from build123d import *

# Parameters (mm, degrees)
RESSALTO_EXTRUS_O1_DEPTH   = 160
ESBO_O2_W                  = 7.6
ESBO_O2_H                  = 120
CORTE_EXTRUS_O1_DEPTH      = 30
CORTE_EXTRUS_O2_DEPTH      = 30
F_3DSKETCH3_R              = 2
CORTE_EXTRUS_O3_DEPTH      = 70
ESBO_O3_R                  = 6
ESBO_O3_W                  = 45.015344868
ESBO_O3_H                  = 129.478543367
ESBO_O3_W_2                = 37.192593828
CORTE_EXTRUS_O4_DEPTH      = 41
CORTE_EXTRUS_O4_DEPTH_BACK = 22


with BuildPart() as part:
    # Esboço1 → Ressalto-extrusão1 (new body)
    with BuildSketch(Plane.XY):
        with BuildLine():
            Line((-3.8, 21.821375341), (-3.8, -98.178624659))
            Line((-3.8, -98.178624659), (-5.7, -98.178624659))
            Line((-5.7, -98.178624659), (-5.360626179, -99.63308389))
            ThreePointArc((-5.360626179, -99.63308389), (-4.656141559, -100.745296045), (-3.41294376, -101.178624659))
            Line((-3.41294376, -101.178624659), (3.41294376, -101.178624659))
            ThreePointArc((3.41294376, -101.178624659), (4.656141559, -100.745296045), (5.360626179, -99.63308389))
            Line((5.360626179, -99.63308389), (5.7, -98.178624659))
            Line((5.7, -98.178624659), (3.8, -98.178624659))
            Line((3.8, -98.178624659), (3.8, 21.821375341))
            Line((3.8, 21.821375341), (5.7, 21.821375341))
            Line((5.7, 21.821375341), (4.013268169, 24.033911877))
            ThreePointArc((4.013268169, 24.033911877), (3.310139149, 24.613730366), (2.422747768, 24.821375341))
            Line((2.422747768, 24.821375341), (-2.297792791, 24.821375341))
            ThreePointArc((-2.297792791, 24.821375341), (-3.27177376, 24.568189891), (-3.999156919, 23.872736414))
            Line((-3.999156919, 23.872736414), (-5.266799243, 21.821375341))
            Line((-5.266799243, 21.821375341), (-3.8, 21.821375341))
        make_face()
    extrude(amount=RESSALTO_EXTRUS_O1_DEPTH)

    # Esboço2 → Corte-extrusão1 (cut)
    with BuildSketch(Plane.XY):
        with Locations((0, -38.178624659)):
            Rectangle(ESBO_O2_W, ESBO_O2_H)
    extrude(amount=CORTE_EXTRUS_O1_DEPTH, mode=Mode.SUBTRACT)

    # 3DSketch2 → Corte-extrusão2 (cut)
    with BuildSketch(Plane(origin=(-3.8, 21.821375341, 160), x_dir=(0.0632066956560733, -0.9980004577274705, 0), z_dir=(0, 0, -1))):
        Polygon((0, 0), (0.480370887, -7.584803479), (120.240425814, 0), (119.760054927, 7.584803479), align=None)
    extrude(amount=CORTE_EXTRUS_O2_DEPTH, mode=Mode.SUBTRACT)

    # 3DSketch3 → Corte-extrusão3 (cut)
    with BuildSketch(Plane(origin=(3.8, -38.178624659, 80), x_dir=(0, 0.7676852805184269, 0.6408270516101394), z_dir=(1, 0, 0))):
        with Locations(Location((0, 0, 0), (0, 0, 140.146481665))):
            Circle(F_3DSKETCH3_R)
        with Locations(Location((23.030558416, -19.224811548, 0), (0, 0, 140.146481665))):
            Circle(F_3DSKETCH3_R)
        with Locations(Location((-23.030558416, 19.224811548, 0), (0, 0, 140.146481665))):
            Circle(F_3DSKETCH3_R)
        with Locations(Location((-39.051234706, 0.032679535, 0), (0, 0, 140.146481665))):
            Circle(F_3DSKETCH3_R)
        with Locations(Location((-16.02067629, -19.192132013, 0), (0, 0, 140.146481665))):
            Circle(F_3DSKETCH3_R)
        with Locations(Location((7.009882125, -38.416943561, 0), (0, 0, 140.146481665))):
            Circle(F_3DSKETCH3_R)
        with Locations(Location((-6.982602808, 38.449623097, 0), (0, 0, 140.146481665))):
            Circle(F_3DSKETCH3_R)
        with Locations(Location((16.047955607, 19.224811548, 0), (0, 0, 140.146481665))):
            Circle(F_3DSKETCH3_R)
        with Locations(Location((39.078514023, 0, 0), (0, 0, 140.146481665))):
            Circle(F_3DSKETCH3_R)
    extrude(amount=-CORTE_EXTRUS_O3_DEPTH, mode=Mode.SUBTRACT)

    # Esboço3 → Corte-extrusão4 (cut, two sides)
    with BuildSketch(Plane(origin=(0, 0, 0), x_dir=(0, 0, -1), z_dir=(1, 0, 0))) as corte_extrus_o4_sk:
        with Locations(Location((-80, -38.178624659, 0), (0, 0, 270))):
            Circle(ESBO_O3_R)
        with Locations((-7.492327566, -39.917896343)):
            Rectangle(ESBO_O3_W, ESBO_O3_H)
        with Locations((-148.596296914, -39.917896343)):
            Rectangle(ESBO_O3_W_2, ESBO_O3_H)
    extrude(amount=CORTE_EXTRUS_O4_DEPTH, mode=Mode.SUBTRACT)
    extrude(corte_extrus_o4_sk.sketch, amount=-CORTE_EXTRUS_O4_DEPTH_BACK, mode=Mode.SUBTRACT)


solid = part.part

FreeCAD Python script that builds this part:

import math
import FreeCAD as App
import Part
import Sketcher
from FreeCAD import Vector

doc = App.newDocument("Part")
body = doc.addObject("PartDesign::Body", "Body")

# Sketch on XY plane
sketch1 = doc.addObject("Sketcher::SketchObject", "Sketch")
body.addObject(sketch1)
sketch1.AttachmentSupport = (doc.XY_Plane, [""])
sketch1.MapMode = "FlatFace"
sketch1.addGeometry([
    Part.LineSegment(Vector(-3.8, 21.8, 0), Vector(-3.8, -98.2, 0)),  # 0
    Part.LineSegment(Vector(-3.8, -98.2, 0), Vector(-5.7, -98.2, 0)),  # 1
    Part.LineSegment(Vector(-5.7, -98.2, 0), Vector(-5.4, -99.6, 0)),  # 2
    Part.ArcOfCircle(Part.Circle(Vector(-3.4, -99.2, 0), Vector(0, 0, 1), 2), math.radians(-167), math.radians(-90)),  # 3
    Part.LineSegment(Vector(-3.4, -101.2, 0), Vector(3.4, -101.2, 0)),  # 4
    Part.ArcOfCircle(Part.Circle(Vector(3.4, -99.2, 0), Vector(0, 0, 1), 2), math.radians(-90), math.radians(-13)),  # 5
    Part.LineSegment(Vector(5.4, -99.6, 0), Vector(5.7, -98.2, 0)),  # 6
    Part.LineSegment(Vector(5.7, -98.2, 0), Vector(3.8, -98.2, 0)),  # 7
    Part.LineSegment(Vector(3.8, -98.2, 0), Vector(3.8, 21.8, 0)),  # 8
    Part.LineSegment(Vector(3.8, 21.8, 0), Vector(5.7, 21.8, 0)),  # 9
    Part.LineSegment(Vector(5.7, 21.8, 0), Vector(4, 24, 0)),  # 10
    Part.ArcOfCircle(Part.Circle(Vector(2.4, 22.8, 0), Vector(0, 0, 1), 2), math.radians(37), math.radians(90)),  # 11
    Part.LineSegment(Vector(2.4, 24.8, 0), Vector(-2.3, 24.8, 0)),  # 12
    Part.ArcOfCircle(Part.Circle(Vector(-2.3, 22.8, 0), Vector(0, 0, 1), 2), math.radians(90), math.radians(148)),  # 13
    Part.LineSegment(Vector(-4, 23.9, 0), Vector(-5.3, 21.8, 0)),  # 14
    Part.LineSegment(Vector(-5.3, 21.8, 0), Vector(-3.8, 21.8, 0)),  # 15
], False)
sketch1.addConstraint([
    Sketcher.Constraint("Coincident", 0, 2, 1, 1),
    Sketcher.Constraint("Coincident", 1, 2, 2, 1),
    Sketcher.Constraint("Tangent", 2, 2, 3, 1),
    Sketcher.Constraint("Tangent", 3, 2, 4, 1),
    Sketcher.Constraint("Tangent", 4, 2, 5, 1),
    Sketcher.Constraint("Tangent", 5, 2, 6, 1),
    Sketcher.Constraint("Coincident", 6, 2, 7, 1),
    Sketcher.Constraint("Coincident", 7, 2, 8, 1),
    Sketcher.Constraint("Coincident", 8, 2, 9, 1),
    Sketcher.Constraint("Coincident", 9, 2, 10, 1),
    Sketcher.Constraint("Tangent", 10, 2, 11, 1),
    Sketcher.Constraint("Tangent", 11, 2, 12, 1),
    Sketcher.Constraint("Tangent", 12, 2, 13, 1),
    Sketcher.Constraint("Tangent", 13, 2, 14, 1),
    Sketcher.Constraint("Coincident", 14, 2, 15, 1),
    Sketcher.Constraint("Coincident", 15, 2, 0, 1),
    Sketcher.Constraint("Vertical", 0),
    Sketcher.Constraint("Horizontal", 1),
    Sketcher.Constraint("Horizontal", 4),
    Sketcher.Constraint("Horizontal", 7),
    Sketcher.Constraint("Vertical", 8),
    Sketcher.Constraint("Horizontal", 9),
    Sketcher.Constraint("Horizontal", 12),
    Sketcher.Constraint("Horizontal", 15),
    Sketcher.Constraint("Equal", 3, 5),
    Sketcher.Constraint("Equal", 5, 11),
    Sketcher.Constraint("Equal", 11, 13),
    Sketcher.Constraint("Symmetric", 2, 2, 5, 2, -2),
    Sketcher.Constraint("Symmetric", 0, 2, 7, 2, -2),
    Sketcher.Constraint("Horizontal", 9, 2, 14, 2),
    Sketcher.Constraint("Vertical", 6, 2, 9, 2),
    Sketcher.Constraint("Radius", 3, 2.0),
    Sketcher.Constraint("DistanceY", 0, 2, 0, 1, 120.0),
    Sketcher.Constraint("DistanceX", 1, 2, 1, 1, 1.9),
    Sketcher.Constraint("DistanceY", 5, 3, 11, 3, 122.0),
    Sketcher.Constraint("DistanceY", 3, 3, 0, 2, 1.0),
    Sketcher.Constraint("DistanceX", 0, 2, -1, 1, 3.8),
    Sketcher.Constraint("DistanceX", 15, 1, 15, 2, 1.466799),
    Sketcher.Constraint("DistanceX", 12, 2, 12, 1, 4.720541),
    Sketcher.Constraint("Distance", 2, 1.493528),
    Sketcher.Constraint("Distance", 14, 2.411431),
    Sketcher.Constraint("DistanceY", -1, 1, 10, 2, 24.033912),
])
pad1 = doc.addObject("PartDesign::Pad", "Pad")
body.addObject(pad1)
pad1.Profile = sketch1
pad1.Length = 160

# Sketch on XY plane
sketch2 = doc.addObject("Sketcher::SketchObject", "Sketch001")
body.addObject(sketch2)
sketch2.AttachmentSupport = (doc.XY_Plane, [""])
sketch2.MapMode = "FlatFace"
sketch2.addGeometry([
    Part.LineSegment(Vector(-4, 22, 0), Vector(-4, -98, 0)),
    Part.LineSegment(Vector(-4, -98, 0), Vector(4, -98, 0)),
    Part.LineSegment(Vector(4, -98, 0), Vector(4, 22, 0)),
    Part.LineSegment(Vector(4, 22, 0), Vector(-4, 22, 0)),
], False)
sketch2.addConstraint([
    Sketcher.Constraint("Coincident", 0, 2, 1, 1),
    Sketcher.Constraint("Coincident", 1, 2, 2, 1),
    Sketcher.Constraint("Coincident", 2, 2, 3, 1),
    Sketcher.Constraint("Coincident", 3, 2, 0, 1),
    Sketcher.Constraint("Vertical", 0),
    Sketcher.Constraint("Horizontal", 1),
    Sketcher.Constraint("Vertical", 2),
    Sketcher.Constraint("Horizontal", 3),
    Sketcher.Constraint("DistanceY", 0, 2, 0, 1, 120.0),
    Sketcher.Constraint("DistanceX", 1, 1, 1, 2, 7.6),
    Sketcher.Constraint("DistanceX", 0, 2, -1, 1, 3.8),
    Sketcher.Constraint("DistanceY", 0, 2, -1, 1, 98.178625),
])
pocket1 = doc.addObject("PartDesign::Pocket", "Pocket")
body.addObject(pocket1)
pocket1.Profile = sketch2
pocket1.Length = 30
pocket1.Reversed = True

# Sketch on XY plane
sketch3 = doc.addObject("Sketcher::SketchObject", "Sketch002")
body.addObject(sketch3)
sketch3.AttachmentSupport = (doc.XY_Plane, [""])
sketch3.MapMode = "FlatFace"
sketch3.AttachmentOffset = App.Placement(Vector(0, 0, 160), App.Rotation())
sketch3.addGeometry([
    Part.LineSegment(Vector(-4, 22, 0), Vector(4, 22, 0)),
    Part.LineSegment(Vector(4, 22, 0), Vector(4, -98, 0)),
    Part.LineSegment(Vector(4, -98, 0), Vector(-4, -98, 0)),
    Part.LineSegment(Vector(-4, -98, 0), Vector(-4, 22, 0)),
], False)
sketch3.addConstraint([
    Sketcher.Constraint("Coincident", 0, 2, 1, 1),
    Sketcher.Constraint("Coincident", 1, 2, 2, 1),
    Sketcher.Constraint("Coincident", 2, 2, 3, 1),
    Sketcher.Constraint("Coincident", 3, 2, 0, 1),
    Sketcher.Constraint("Horizontal", 0),
    Sketcher.Constraint("Vertical", 1),
    Sketcher.Constraint("Horizontal", 2),
    Sketcher.Constraint("Vertical", 3),
    Sketcher.Constraint("DistanceY", 1, 2, 1, 1, 120.0),
    Sketcher.Constraint("DistanceX", 0, 1, 0, 2, 7.6),
    Sketcher.Constraint("DistanceX", -1, 1, 0, 2, 3.8),
    Sketcher.Constraint("DistanceY", -1, 1, 0, 2, 21.821375),
])
pocket2 = doc.addObject("PartDesign::Pocket", "Pocket001")
body.addObject(pocket2)
pocket2.Profile = sketch3
pocket2.Length = 30

# Sketch on YZ plane
sketch4 = doc.addObject("Sketcher::SketchObject", "Sketch003")
body.addObject(sketch4)
sketch4.AttachmentSupport = (doc.YZ_Plane, [""])
sketch4.MapMode = "FlatFace"
sketch4.AttachmentOffset = App.Placement(Vector(0, 0, 3.8), App.Rotation())
sketch4.addGeometry([
    Part.Circle(Vector(-38.2, 80, 0), Vector(0, 0, 1), 2),  # 0
    Part.Circle(Vector(-8.2, 80, 0), Vector(0, 0, 1), 2),  # 1
    Part.Circle(Vector(-68.2, 80, 0), Vector(0, 0, 1), 2),  # 2
    Part.Circle(Vector(-68.2, 55, 0), Vector(0, 0, 1), 2),  # 3
    Part.Circle(Vector(-38.2, 55, 0), Vector(0, 0, 1), 2),  # 4
    Part.Circle(Vector(-8.2, 55, 0), Vector(0, 0, 1), 2),  # 5
    Part.Circle(Vector(-68.2, 105, 0), Vector(0, 0, 1), 2),  # 6
    Part.Circle(Vector(-38.2, 105, 0), Vector(0, 0, 1), 2),  # 7
    Part.Circle(Vector(-8.2, 105, 0), Vector(0, 0, 1), 2),  # 8
], False)
sketch4.addConstraint([
    Sketcher.Constraint("Equal", 0, 1),
    Sketcher.Constraint("Equal", 1, 2),
    Sketcher.Constraint("Equal", 2, 3),
    Sketcher.Constraint("Equal", 3, 4),
    Sketcher.Constraint("Equal", 4, 5),
    Sketcher.Constraint("Equal", 5, 6),
    Sketcher.Constraint("Equal", 6, 7),
    Sketcher.Constraint("Equal", 7, 8),
    Sketcher.Constraint("Horizontal", 0, 3, 1, 3),
    Sketcher.Constraint("Horizontal", 1, 3, 2, 3),
    Sketcher.Constraint("Horizontal", 3, 3, 4, 3),
    Sketcher.Constraint("Horizontal", 4, 3, 5, 3),
    Sketcher.Constraint("Horizontal", 6, 3, 7, 3),
    Sketcher.Constraint("Horizontal", 7, 3, 8, 3),
    Sketcher.Constraint("Vertical", 2, 3, 3, 3),
    Sketcher.Constraint("Vertical", 0, 3, 4, 3),
    Sketcher.Constraint("Vertical", 1, 3, 5, 3),
    Sketcher.Constraint("Vertical", 3, 3, 6, 3),
    Sketcher.Constraint("Vertical", 4, 3, 7, 3),
    Sketcher.Constraint("Vertical", 5, 3, 8, 3),
    Sketcher.Constraint("Diameter", 0, 4.0),
    Sketcher.Constraint("DistanceY", -1, 1, 0, 3, 80.0),
    Sketcher.Constraint("DistanceY", -1, 1, 3, 3, 55.0),
    Sketcher.Constraint("DistanceX", 0, 3, 1, 3, 30.0),
    Sketcher.Constraint("DistanceX", 2, 3, 0, 3, 30.0),
    Sketcher.Constraint("DistanceY", -1, 1, 6, 3, 105.042569),
    Sketcher.Constraint("DistanceX", 0, 3, -1, 1, 38.178625),
])
pocket3 = doc.addObject("PartDesign::Pocket", "Pocket002")
body.addObject(pocket3)
pocket3.Profile = sketch4
pocket3.Length = 70

# Sketch on YZ plane
sketch5 = doc.addObject("Sketcher::SketchObject", "Sketch004")
body.addObject(sketch5)
sketch5.AttachmentSupport = (doc.YZ_Plane, [""])
sketch5.MapMode = "FlatFace"
sketch5.addGeometry([
    Part.Circle(Vector(-38, 80, 0), Vector(0, 0, 1), 6),  # 0
    Part.LineSegment(Vector(25, 30, 0), Vector(-105, 30, 0)),  # 1
    Part.LineSegment(Vector(-105, 30, 0), Vector(-105, -15, 0)),  # 2
    Part.LineSegment(Vector(-105, -15, 0), Vector(25, -15, 0)),  # 3
    Part.LineSegment(Vector(25, -15, 0), Vector(25, 30, 0)),  # 4
    Part.LineSegment(Vector(25, 167, 0), Vector(-105, 167, 0)),  # 5
    Part.LineSegment(Vector(-105, 167, 0), Vector(-105, 130, 0)),  # 6
    Part.LineSegment(Vector(-105, 130, 0), Vector(25, 130, 0)),  # 7
    Part.LineSegment(Vector(25, 130, 0), Vector(25, 167, 0)),  # 8
], False)
sketch5.addConstraint([
    Sketcher.Constraint("Coincident", 1, 2, 2, 1),
    Sketcher.Constraint("Coincident", 2, 2, 3, 1),
    Sketcher.Constraint("Coincident", 3, 2, 4, 1),
    Sketcher.Constraint("Coincident", 4, 2, 1, 1),
    Sketcher.Constraint("Coincident", 5, 2, 6, 1),
    Sketcher.Constraint("Coincident", 6, 2, 7, 1),
    Sketcher.Constraint("Coincident", 7, 2, 8, 1),
    Sketcher.Constraint("Coincident", 8, 2, 5, 1),
    Sketcher.Constraint("Horizontal", 1),
    Sketcher.Constraint("Vertical", 2),
    Sketcher.Constraint("Horizontal", 3),
    Sketcher.Constraint("Vertical", 4),
    Sketcher.Constraint("Horizontal", 5),
    Sketcher.Constraint("Vertical", 6),
    Sketcher.Constraint("Horizontal", 7),
    Sketcher.Constraint("Vertical", 8),
    Sketcher.Constraint("Vertical", 2, 2, 5, 2),
    Sketcher.Constraint("Vertical", 4, 2, 7, 2),
    Sketcher.Constraint("Diameter", 0, 12.0),
    Sketcher.Constraint("DistanceY", -1, 1, 0, 3, 80.0),
    Sketcher.Constraint("DistanceY", -1, 1, 1, 2, 30.0),
    Sketcher.Constraint("DistanceY", -1, 1, 6, 2, 130.0),
    Sketcher.Constraint("DistanceX", 0, 3, 3, 2, 63.0),
    Sketcher.Constraint("DistanceX", 1, 2, 1, 1, 129.478543),
    Sketcher.Constraint("DistanceY", 2, 2, 2, 1, 45.015345),
    Sketcher.Constraint("DistanceY", 6, 2, 6, 1, 37.192594),
    Sketcher.Constraint("DistanceX", 1, 2, -1, 1, 104.657168),
])
pocket4 = doc.addObject("PartDesign::Pocket", "Pocket003")
body.addObject(pocket4)
pocket4.Profile = sketch5
pocket4.Type = "ThroughAll"
pocket4.Midplane = True

doc.recompute()
